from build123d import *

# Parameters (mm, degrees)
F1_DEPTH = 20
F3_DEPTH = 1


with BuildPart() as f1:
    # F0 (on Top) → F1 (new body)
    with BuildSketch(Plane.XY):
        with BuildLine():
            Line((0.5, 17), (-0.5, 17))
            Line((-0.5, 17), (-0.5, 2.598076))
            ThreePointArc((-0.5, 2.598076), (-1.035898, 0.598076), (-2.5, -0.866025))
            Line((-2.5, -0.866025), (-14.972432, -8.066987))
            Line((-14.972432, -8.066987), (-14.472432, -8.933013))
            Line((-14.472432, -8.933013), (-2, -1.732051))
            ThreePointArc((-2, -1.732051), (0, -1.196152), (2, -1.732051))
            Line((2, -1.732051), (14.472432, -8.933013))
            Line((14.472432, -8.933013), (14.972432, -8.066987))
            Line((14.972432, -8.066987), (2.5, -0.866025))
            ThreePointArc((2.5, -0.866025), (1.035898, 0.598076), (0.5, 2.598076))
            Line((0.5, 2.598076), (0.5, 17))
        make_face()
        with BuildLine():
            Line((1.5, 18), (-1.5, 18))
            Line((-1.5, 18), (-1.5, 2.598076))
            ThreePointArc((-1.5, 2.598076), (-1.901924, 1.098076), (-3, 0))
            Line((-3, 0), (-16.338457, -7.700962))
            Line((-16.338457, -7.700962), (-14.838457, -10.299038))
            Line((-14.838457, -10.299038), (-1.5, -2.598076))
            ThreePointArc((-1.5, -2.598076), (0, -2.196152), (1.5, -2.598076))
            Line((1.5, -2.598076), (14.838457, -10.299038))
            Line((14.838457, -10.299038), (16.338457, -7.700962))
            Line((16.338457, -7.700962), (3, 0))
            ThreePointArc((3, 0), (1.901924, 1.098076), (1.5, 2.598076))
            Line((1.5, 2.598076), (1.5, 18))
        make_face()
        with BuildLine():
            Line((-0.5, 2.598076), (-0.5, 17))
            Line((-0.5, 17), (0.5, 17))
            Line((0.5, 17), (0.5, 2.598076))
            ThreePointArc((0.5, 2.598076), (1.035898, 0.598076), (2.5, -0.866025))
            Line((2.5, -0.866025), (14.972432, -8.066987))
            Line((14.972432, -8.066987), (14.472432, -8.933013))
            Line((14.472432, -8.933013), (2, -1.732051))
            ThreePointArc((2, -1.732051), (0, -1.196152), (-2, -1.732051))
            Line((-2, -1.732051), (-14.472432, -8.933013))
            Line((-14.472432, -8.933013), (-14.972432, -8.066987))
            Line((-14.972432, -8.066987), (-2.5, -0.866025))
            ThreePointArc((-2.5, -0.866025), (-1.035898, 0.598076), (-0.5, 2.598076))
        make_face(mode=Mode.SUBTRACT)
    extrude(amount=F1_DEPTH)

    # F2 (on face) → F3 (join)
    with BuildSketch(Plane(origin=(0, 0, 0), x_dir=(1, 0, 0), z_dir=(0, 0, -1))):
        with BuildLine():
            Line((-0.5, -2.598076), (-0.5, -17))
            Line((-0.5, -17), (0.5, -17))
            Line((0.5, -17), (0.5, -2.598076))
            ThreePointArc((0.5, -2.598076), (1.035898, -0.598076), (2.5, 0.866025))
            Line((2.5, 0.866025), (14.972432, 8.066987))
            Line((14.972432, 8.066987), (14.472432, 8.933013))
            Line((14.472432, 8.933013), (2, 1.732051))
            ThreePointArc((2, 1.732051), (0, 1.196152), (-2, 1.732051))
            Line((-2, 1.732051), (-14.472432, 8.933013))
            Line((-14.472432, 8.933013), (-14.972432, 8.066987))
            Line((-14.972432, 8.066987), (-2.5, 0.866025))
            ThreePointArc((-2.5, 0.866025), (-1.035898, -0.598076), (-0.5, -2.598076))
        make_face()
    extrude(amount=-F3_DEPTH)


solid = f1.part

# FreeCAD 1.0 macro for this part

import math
import FreeCAD as App
import Part
import Sketcher

V = App.Vector
Q = App.Units.Quantity

doc = App.newDocument("Part")
body = doc.addObject("PartDesign::Body", "Body")

# Sketch on XY plane
sketch1 = body.newObject("Sketcher::SketchObject", "Sketch")
sketch1.AttachmentSupport = (doc.getObject("XY_Plane"), [""])
sketch1.MapMode = "FlatFace"
sketch1.addGeometry([
    Part.LineSegment(V(1.5, 18, 0), V(-1.5, 18, 0)),  # 0
    Part.LineSegment(V(-1.5, 18, 0), V(-1.5, 2.6, 0)),  # 1
    Part.ArcOfCircle(Part.Circle(V(-4.5, 2.6, 0), V(0, 0, 1), 3), math.radians(-60), math.radians(0)),  # 2
    Part.LineSegment(V(-3, 0, 0), V(-16.3, -7.7, 0)),  # 3
    Part.LineSegment(V(-16.3, -7.7, 0), V(-14.8, -10.3, 0)),  # 4
    Part.LineSegment(V(-14.8, -10.3, 0), V(-1.5, -2.6, 0)),  # 5
    Part.ArcOfCircle(Part.Circle(V(0, -5.2, 0), V(0, 0, 1), 3), math.radians(60), math.radians(120)),  # 6
    Part.LineSegment(V(1.5, -2.6, 0), V(14.8, -10.3, 0)),  # 7
    Part.LineSegment(V(14.8, -10.3, 0), V(16.3, -7.7, 0)),  # 8
    Part.LineSegment(V(16.3, -7.7, 0), V(3, 0, 0)),  # 9
    Part.ArcOfCircle(Part.Circle(V(4.5, 2.6, 0), V(0, 0, 1), 3), math.radians(-180), math.radians(-120)),  # 10
    Part.LineSegment(V(1.5, 2.6, 0), V(1.5, 18, 0)),  # 11
    Part.ArcOfCircle(Part.Circle(V(-4.5, 2.6, 0), V(0, 0, 1), 4), math.radians(-60), math.radians(0)),  # 12
    Part.LineSegment(V(-0.5, 2.6, 0), V(-0.5, 17, 0)),  # 13
    Part.LineSegment(V(-0.5, 17, 0), V(0.5, 17, 0)),  # 14
    Part.LineSegment(V(0.5, 17, 0), V(0.5, 2.6, 0)),  # 15
    Part.ArcOfCircle(Part.Circle(V(4.5, 2.6, 0), V(0, 0, 1), 4), math.radians(180), math.radians(240)),  # 16
    Part.LineSegment(V(2.5, -0.9, 0), V(15, -8.1, 0)),  # 17
    Part.LineSegment(V(15, -8.1, 0), V(14.5, -8.9, 0)),  # 18
    Part.LineSegment(V(14.5, -8.9, 0), V(2, -1.7, 0)),  # 19
    Part.ArcOfCircle(Part.Circle(V(0, -5.2, 0), V(0, 0, 1), 4), math.radians(60), math.radians(120)),  # 20
    Part.LineSegment(V(-2, -1.7, 0), V(-14.5, -8.9, 0)),  # 21
    Part.LineSegment(V(-14.5, -8.9, 0), V(-15, -8.1, 0)),  # 22
    Part.LineSegment(V(-15, -8.1, 0), V(-2.5, -0.9, 0)),  # 23
], False)
sketch1.addConstraint([
    Sketcher.Constraint("Coincident", 0, 2, 1, 1),
    Sketcher.Constraint("Tangent", 1, 2, 2, 2),
    Sketcher.Constraint("Tangent", 2, 1, 3, 1),
    Sketcher.Constraint("Coincident", 3, 2, 4, 1),
    Sketcher.Constraint("Coincident", 4, 2, 5, 1),
    Sketcher.Constraint("Tangent", 5, 2, 6, 2),
    Sketcher.Constraint("Tangent", 6, 1, 7, 1),
    Sketcher.Constraint("Coincident", 7, 2, 8, 1),
    Sketcher.Constraint("Coincident", 8, 2, 9, 1),
    Sketcher.Constraint("Tangent", 9, 2, 10, 2),
    Sketcher.Constraint("Tangent", 10, 1, 11, 1),
    Sketcher.Constraint("Coincident", 11, 2, 0, 1),
    Sketcher.Constraint("Tangent", 12, 2, 13, 1),
    Sketcher.Constraint("Coincident", 13, 2, 14, 1),
    Sketcher.Constraint("Coincident", 14, 2, 15, 1),
    Sketcher.Constraint("Tangent", 15, 2, 16, 1),
    Sketcher.Constraint("Tangent", 16, 2, 17, 1),
    Sketcher.Constraint("Coincident", 17, 2, 18, 1),
    Sketcher.Constraint("Coincident", 18, 2, 19, 1),
    Sketcher.Constraint("Tangent", 19, 2, 20, 1),
    Sketcher.Constraint("Tangent", 20, 2, 21, 1),
    Sketcher.Constraint("Coincident", 21, 2, 22, 1),
    Sketcher.Constraint("Coincident", 22, 2, 23, 1),
    Sketcher.Constraint("Tangent", 23, 2, 12, 1),
    Sketcher.Constraint("Horizontal", 0),
    Sketcher.Constraint("Vertical", 1),
    Sketcher.Constraint("Vertical", 11),
    Sketcher.Constraint("Vertical", 13),
    Sketcher.Constraint("Horizontal", 14),
    Sketcher.Constraint("Vertical", 15),
    Sketcher.Constraint("Coincident", 12, 3, 2, 3),
    Sketcher.Constraint("Coincident", 16, 3, 10, 3),
    Sketcher.Constraint("Coincident", 20, 3, 6, 3),
    Sketcher.Constraint("Equal", 2, 6),
    Sketcher.Constraint("Equal", 6, 10),
    Sketcher.Constraint("Equal", 12, 16),
    Sketcher.Constraint("Equal", 16, 20),
    Sketcher.Constraint("Symmetric", 1, 2, 6, 1, -1, 1),
    Sketcher.Constraint("Symmetric", 2, 1, 9, 2, -1, 1),
    Sketcher.Constraint("Symmetric", 5, 2, 10, 1, -1, 1),
    Sketcher.Constraint("Symmetric", 2, 3, 10, 3, -2),
    Sketcher.Constraint("Symmetric", 18, 2, 21, 2, -2),
    Sketcher.Constraint("Symmetric", 17, 2, 22, 2, -2),
    Sketcher.Constraint("Perpendicular", 3, 4),
    Sketcher.Constraint("Perpendicular", 4, 5),
    Sketcher.Constraint("Perpendicular", 7, 8),
    Sketcher.Constraint("Parallel", 9, 17),
    Sketcher.Constraint("Perpendicular", 17, 18),
    Sketcher.Constraint("Perpendicular", 18, 19),
    Sketcher.Constraint("Horizontal", 4, 2, 7, 2),
    Sketcher.Constraint("Equal", 3, 5),
    Sketcher.Constraint("Radius", 2, Q("3.000001 mm")),
    Sketcher.Constraint("DistanceX", 14, 1, 14, 2, Q("1 mm")),
    Sketcher.Constraint("DistanceY", -1, 1, 0, 2, Q("18 mm")),
    Sketcher.Constraint("DistanceY", -1, 1, 13, 2, Q("17 mm")),
    Sketcher.Constraint("DistanceY", 3, 2, -1, 1, Q("7.700962 mm")),
    Sketcher.Constraint("DistanceY", 7, 2, 17, 2, Q("2.232051 mm")),
])
pad1 = body.newObject("PartDesign::Pad", "Pad")
pad1.Profile = sketch1
pad1.Length = 20

# Sketch on XY plane
sketch2 = body.newObject("Sketcher::SketchObject", "Sketch001")
sketch2.AttachmentSupport = (doc.getObject("XY_Plane"), [""])
sketch2.MapMode = "FlatFace"
sketch2.addGeometry([
    Part.LineSegment(V(-0.5, 2.6, 0), V(-0.5, 17, 0)),  # 0
    Part.LineSegment(V(-0.5, 17, 0), V(0.5, 17, 0)),  # 1
    Part.LineSegment(V(0.5, 17, 0), V(0.5, 2.6, 0)),  # 2
    Part.ArcOfCircle(Part.Circle(V(4.5, 2.6, 0), V(0, 0, 1), 4), math.radians(180), math.radians(240)),  # 3
    Part.LineSegment(V(2.5, -0.9, 0), V(15, -8.1, 0)),  # 4
    Part.LineSegment(V(15, -8.1, 0), V(14.5, -8.9, 0)),  # 5
    Part.LineSegment(V(14.5, -8.9, 0), V(2, -1.7, 0)),  # 6
    Part.ArcOfCircle(Part.Circle(V(0, -5.2, 0), V(0, 0, 1), 4), math.radians(60), math.radians(120)),  # 7
    Part.LineSegment(V(-2, -1.7, 0), V(-14.5, -8.9, 0)),  # 8
    Part.LineSegment(V(-14.5, -8.9, 0), V(-15, -8.1, 0)),  # 9
    Part.LineSegment(V(-15, -8.1, 0), V(-2.5, -0.9, 0)),  # 10
    Part.ArcOfCircle(Part.Circle(V(-4.5, 2.6, 0), V(0, 0, 1), 4), math.radians(-60), math.radians(0)),  # 11
], False)
sketch2.addConstraint([
    Sketcher.Constraint("Coincident", 0, 2, 1, 1),
    Sketcher.Constraint("Coincident", 1, 2, 2, 1),
    Sketcher.Constraint("Tangent", 2, 2, 3, 1),
    Sketcher.Constraint("Tangent", 3, 2, 4, 1),
    Sketcher.Constraint("Coincident", 4, 2, 5, 1),
    Sketcher.Constraint("Coincident", 5, 2, 6, 1),
    Sketcher.Constraint("Tangent", 6, 2, 7, 1),
    Sketcher.Constraint("Tangent", 7, 2, 8, 1),
    Sketcher.Constraint("Coincident", 8, 2, 9, 1),
    Sketcher.Constraint("Coincident", 9, 2, 10, 1),
    Sketcher.Constraint("Tangent", 10, 2, 11, 1),
    Sketcher.Constraint("Tangent", 11, 2, 0, 1),
    Sketcher.Constraint("Vertical", 0),
    Sketcher.Constraint("Horizontal", 1),
    Sketcher.Constraint("Vertical", 2),
    Sketcher.Constraint("Equal", 3, 7),
    Sketcher.Constraint("Equal", 7, 11),
    Sketcher.Constraint("Symmetric", 3, 3, 11, 3, -2),
    Sketcher.Constraint("Symmetric", 6, 2, 7, 2, -2),
    Sketcher.Constraint("Symmetric", 4, 2, 9, 2, -2),
    Sketcher.Constraint("Perpendicular", 4, 5),
    Sketcher.Constraint("Perpendicular", 5, 6),
    Sketcher.Constraint("Perpendicular", 8, 9),
    Sketcher.Constraint("Equal", 4, 6),
    Sketcher.Constraint("DistanceX", 1, 1, 1, 2, Q("1 mm")),
    Sketcher.Constraint("Angle", 4, Q("-30 deg")),
    Sketcher.Constraint("DistanceY", -1, 1, 0, 2, Q("17 mm")),
    Sketcher.Constraint("DistanceX", -1, 1, 6, 2, Q("2 mm")),
    Sketcher.Constraint("DistanceY", 0, 1, 0, 2, Q("14.401924 mm")),
    Sketcher.Constraint("DistanceY", 4, 2, 3, 2, Q("7.200962 mm")),
])
pad2 = body.newObject("PartDesign::Pad", "Pad001")
pad2.Profile = sketch2
pad2.Length = 1

doc.recompute()
